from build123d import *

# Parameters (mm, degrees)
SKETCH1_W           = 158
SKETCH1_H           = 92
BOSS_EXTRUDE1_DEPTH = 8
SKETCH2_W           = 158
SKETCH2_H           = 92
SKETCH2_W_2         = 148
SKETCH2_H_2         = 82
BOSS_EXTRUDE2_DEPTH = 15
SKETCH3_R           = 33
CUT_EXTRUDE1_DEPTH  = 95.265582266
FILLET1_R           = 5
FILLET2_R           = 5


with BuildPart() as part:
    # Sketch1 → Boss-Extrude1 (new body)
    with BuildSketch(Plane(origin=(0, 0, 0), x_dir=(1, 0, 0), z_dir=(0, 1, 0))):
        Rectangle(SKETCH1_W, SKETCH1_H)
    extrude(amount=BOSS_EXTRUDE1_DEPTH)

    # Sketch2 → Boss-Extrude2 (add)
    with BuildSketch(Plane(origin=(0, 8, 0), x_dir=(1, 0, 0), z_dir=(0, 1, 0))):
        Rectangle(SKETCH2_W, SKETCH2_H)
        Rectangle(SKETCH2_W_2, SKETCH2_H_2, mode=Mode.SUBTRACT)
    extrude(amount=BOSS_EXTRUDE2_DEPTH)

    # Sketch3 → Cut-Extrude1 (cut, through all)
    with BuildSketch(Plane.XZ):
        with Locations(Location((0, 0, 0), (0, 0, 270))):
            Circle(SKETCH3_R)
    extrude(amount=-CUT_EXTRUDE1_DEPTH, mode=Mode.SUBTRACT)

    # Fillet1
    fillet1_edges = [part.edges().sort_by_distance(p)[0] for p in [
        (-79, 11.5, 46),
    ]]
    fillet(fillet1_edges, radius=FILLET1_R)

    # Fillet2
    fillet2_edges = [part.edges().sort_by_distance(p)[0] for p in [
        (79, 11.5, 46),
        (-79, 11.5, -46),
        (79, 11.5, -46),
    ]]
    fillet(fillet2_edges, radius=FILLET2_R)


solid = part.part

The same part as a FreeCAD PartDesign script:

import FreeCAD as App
import Part
import Sketcher

V = App.Vector
Q = App.Units.Quantity


def edges_at(feature, points):
    """Names of the edges that pass closest to the given points."""
    edges = feature.Shape.Edges
    near = lambda p: min(range(len(edges)), key=lambda i: edges[i].distToShape(Part.Vertex(*p))[0])
    return sorted({f"Edge{near(p) + 1}" for p in points})


def add_polygon(sketch, points):
    """Adds a closed chain of lines whose ends are joined by coincident constraints."""
    first, n = sketch.GeometryCount, len(points)
    for a, b in zip(points, points[1:] + points[:1]):
        sketch.addGeometry(Part.LineSegment(App.Vector(*a, 0), App.Vector(*b, 0)), False)
    for i in range(n):
        sketch.addConstraint(Sketcher.Constraint("Coincident", first + i, 2, first + (i + 1) % n, 1))

doc = App.newDocument("Part")
params = doc.addObject("Spreadsheet::Sheet", "Params")
for row, (alias, value) in enumerate([
    ("sketch1_width", "158 mm"),
    ("sketch1_height", "92 mm"),
    ("pad1_length", "8 mm"),
    ("sketch2_width", "158 mm"),
    ("sketch2_width2", "148 mm"),
    ("sketch2_height", "92 mm"),
    ("sketch2_height2", "82 mm"),
    ("pad2_length", "15 mm"),
    ("sketch3_diameter", "66 mm"),
    ("fillet_radius", "5 mm"),
    ("fillet2_radius", "5 mm"),
], start=1):
    params.set(f"A{row}", alias)
    params.set(f"B{row}", "=" + value)
    params.setAlias(f"B{row}", alias)

body = doc.addObject("PartDesign::Body", "Body")

# Sketch on XZ plane
sketch1 = body.newObject("Sketcher::SketchObject", "Sketch")
sketch1.AttachmentSupport = (doc.getObject("XZ_Plane"), [""])
sketch1.MapMode = "FlatFace"
add_polygon(sketch1, [(-79, -46), (-79, 46), (79, 46), (79, -46)])  # lines 0-3
sketch1.addConstraint([
    Sketcher.Constraint("Vertical", 0),
    Sketcher.Constraint("Horizontal", 1),
    Sketcher.Constraint("Vertical", 2),
    Sketcher.Constraint("Horizontal", 3),
    Sketcher.Constraint("Symmetric", 0, 2, 2, 2, -1, 1),
    Sketcher.Constraint("DistanceX", 1, 1, 1, 2, Q("158 mm")),
    Sketcher.Constraint("DistanceY", 0, 1, 0, 2, Q("92 mm")),
])
sketch1.setExpression("Constraints[9]", "Params.sketch1_width")
sketch1.setExpression("Constraints[10]", "Params.sketch1_height")
pad1 = body.newObject("PartDesign::Pad", "Pad")
pad1.Profile = sketch1
pad1.setExpression("Length", "Params.pad1_length")
pad1.Reversed = True

# Sketch on XZ plane
sketch2 = body.newObject("Sketcher::SketchObject", "Sketch001")
sketch2.AttachmentSupport = (doc.getObject("XZ_Plane"), [""])
sketch2.MapMode = "FlatFace"
sketch2.AttachmentOffset = App.Placement(V(0, 0, -8), App.Rotation())
add_polygon(sketch2, [(-79, -46), (-79, 46), (79, 46), (79, -46)])  # lines 0-3
add_polygon(sketch2, [(74, 41), (-74, 41), (-74, -41), (74, -41)])  # lines 4-7
sketch2.addConstraint([
    Sketcher.Constraint("Vertical", 0),
    Sketcher.Constraint("Horizontal", 1),
    Sketcher.Constraint("Vertical", 2),
    Sketcher.Constraint("Horizontal", 3),
    Sketcher.Constraint("Horizontal", 4),
    Sketcher.Constraint("Vertical", 5),
    Sketcher.Constraint("Horizontal", 6),
    Sketcher.Constraint("Vertical", 7),
    Sketcher.Constraint("Symmetric", 0, 2, 2, 2, -1, 1),
    Sketcher.Constraint("Symmetric", 4, 2, 6, 2, -1, 1),
    Sketcher.Constraint("DistanceX", 1, 1, 1, 2, Q("158 mm")),
    Sketcher.Constraint("DistanceX", 4, 2, 4, 1, Q("148 mm")),
    Sketcher.Constraint("DistanceY", 0, 1, 0, 2, Q("92 mm")),
    Sketcher.Constraint("DistanceY", 5, 2, 5, 1, Q("82 mm")),
])
sketch2.setExpression("Constraints[18]", "Params.sketch2_width")
sketch2.setExpression("Constraints[19]", "Params.sketch2_width2")
sketch2.setExpression("Constraints[20]", "Params.sketch2_height")
sketch2.setExpression("Constraints[21]", "Params.sketch2_height2")
pad2 = body.newObject("PartDesign::Pad", "Pad001")
pad2.Profile = sketch2
pad2.setExpression("Length", "Params.pad2_length")
pad2.Reversed = True

# Sketch on XZ plane
sketch3 = body.newObject("Sketcher::SketchObject", "Sketch002")
sketch3.AttachmentSupport = (doc.getObject("XZ_Plane"), [""])
sketch3.MapMode = "FlatFace"
sketch3.addGeometry(Part.Circle(V(0, 0, 0), V(0, 0, 1), 33), False)
sketch3.addConstraint([
    Sketcher.Constraint("Coincident", 0, 3, -1, 1),
    Sketcher.Constraint("Diameter", 0, Q("66 mm")),
])
sketch3.setExpression("Constraints[1]", "Params.sketch3_diameter")
pocket1 = body.newObject("PartDesign::Pocket", "Pocket")
pocket1.Profile = sketch3
pocket1.Type = "ThroughAll"
doc.recompute()

fillet = body.newObject("PartDesign::Fillet", "Fillet")
fillet.Base = (pocket1, edges_at(pocket1, [(-79, 11.5, 46)]))
fillet.setExpression("Radius", "Params.fillet_radius")
doc.recompute()

fillet2 = body.newObject("PartDesign::Fillet", "Fillet001")
fillet2.Base = (fillet, edges_at(fillet, [(79, 11.5, 46), (-79, 11.5, -46), (79, 11.5, -46)]))
fillet2.setExpression("Radius", "Params.fillet2_radius")

doc.recompute()
